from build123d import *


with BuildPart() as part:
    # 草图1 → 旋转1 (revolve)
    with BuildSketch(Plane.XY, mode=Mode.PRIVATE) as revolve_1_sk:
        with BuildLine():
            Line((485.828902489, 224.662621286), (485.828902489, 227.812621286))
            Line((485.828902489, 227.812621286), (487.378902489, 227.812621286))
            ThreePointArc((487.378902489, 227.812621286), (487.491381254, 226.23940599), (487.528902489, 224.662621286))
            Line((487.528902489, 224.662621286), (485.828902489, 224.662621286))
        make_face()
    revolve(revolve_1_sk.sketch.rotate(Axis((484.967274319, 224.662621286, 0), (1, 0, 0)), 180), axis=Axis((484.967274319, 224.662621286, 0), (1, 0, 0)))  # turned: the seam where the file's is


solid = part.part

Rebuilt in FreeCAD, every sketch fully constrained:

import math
import FreeCAD as App
import Part
import Sketcher

V = App.Vector
Q = App.Units.Quantity

doc = App.newDocument("Part")
body = doc.addObject("PartDesign::Body", "Body")

sketch1 = doc.addObject("Sketcher::SketchObject", "Sketch")
body.addObject(sketch1)
sketch1.AttachmentSupport = (doc.XY_Plane, [""])
sketch1.MapMode = "FlatFace"
sketch1.addGeometry([
    Part.LineSegment(V(485.8, 227.8, 0), V(485.8, 224.7, 0)),
    Part.LineSegment(V(485.8, 224.7, 0), V(487.5, 224.7, 0)),
    Part.ArcOfCircle(Part.Circle(V(454.4, 224.7, 0), V(0, 0, 1), 33.2), math.radians(0), math.radians(5.45)),
    Part.LineSegment(V(487.4, 227.8, 0), V(485.8, 227.8, 0)),
], False)
sketch1.addGeometry(Part.LineSegment(V(454.4, 224.7, 0), V(487.5, 224.7, 0)), True)
sketch1.addConstraint([
    Sketcher.Constraint("Coincident", 0, 2, 1, 1),
    Sketcher.Constraint("Coincident", 1, 2, 2, 1),
    Sketcher.Constraint("Coincident", 2, 2, 3, 1),
    Sketcher.Constraint("Coincident", 3, 2, 0, 1),
    Sketcher.Constraint("Vertical", 0),
    Sketcher.Constraint("Horizontal", 1),
    Sketcher.Constraint("Horizontal", 3),
    Sketcher.Constraint("Horizontal", 4),
    Sketcher.Constraint("Coincident", 4, 1, 2, 3),
    Sketcher.Constraint("Coincident", 4, 2, 1, 2),
    Sketcher.Constraint("Radius", 2, Q("33.15 mm")),
    Sketcher.Constraint("DistanceX", 1, 1, 1, 2, Q("1.7 mm")),
    Sketcher.Constraint("DistanceX", 2, 3, 2, 2, Q("33 mm")),
    Sketcher.Constraint("DistanceY", -1, 1, 2, 3, Q("224.662621 mm")),
    Sketcher.Constraint("DistanceX", -1, 1, 2, 3, Q("454.378902 mm")),
])
revolution = doc.addObject("PartDesign::Revolution", "Revolution")
body.addObject(revolution)
revolution.Profile = sketch1
revolution.ReferenceAxis = (sketch1, ["Axis0"])
revolution.Angle = 360

doc.recompute()
